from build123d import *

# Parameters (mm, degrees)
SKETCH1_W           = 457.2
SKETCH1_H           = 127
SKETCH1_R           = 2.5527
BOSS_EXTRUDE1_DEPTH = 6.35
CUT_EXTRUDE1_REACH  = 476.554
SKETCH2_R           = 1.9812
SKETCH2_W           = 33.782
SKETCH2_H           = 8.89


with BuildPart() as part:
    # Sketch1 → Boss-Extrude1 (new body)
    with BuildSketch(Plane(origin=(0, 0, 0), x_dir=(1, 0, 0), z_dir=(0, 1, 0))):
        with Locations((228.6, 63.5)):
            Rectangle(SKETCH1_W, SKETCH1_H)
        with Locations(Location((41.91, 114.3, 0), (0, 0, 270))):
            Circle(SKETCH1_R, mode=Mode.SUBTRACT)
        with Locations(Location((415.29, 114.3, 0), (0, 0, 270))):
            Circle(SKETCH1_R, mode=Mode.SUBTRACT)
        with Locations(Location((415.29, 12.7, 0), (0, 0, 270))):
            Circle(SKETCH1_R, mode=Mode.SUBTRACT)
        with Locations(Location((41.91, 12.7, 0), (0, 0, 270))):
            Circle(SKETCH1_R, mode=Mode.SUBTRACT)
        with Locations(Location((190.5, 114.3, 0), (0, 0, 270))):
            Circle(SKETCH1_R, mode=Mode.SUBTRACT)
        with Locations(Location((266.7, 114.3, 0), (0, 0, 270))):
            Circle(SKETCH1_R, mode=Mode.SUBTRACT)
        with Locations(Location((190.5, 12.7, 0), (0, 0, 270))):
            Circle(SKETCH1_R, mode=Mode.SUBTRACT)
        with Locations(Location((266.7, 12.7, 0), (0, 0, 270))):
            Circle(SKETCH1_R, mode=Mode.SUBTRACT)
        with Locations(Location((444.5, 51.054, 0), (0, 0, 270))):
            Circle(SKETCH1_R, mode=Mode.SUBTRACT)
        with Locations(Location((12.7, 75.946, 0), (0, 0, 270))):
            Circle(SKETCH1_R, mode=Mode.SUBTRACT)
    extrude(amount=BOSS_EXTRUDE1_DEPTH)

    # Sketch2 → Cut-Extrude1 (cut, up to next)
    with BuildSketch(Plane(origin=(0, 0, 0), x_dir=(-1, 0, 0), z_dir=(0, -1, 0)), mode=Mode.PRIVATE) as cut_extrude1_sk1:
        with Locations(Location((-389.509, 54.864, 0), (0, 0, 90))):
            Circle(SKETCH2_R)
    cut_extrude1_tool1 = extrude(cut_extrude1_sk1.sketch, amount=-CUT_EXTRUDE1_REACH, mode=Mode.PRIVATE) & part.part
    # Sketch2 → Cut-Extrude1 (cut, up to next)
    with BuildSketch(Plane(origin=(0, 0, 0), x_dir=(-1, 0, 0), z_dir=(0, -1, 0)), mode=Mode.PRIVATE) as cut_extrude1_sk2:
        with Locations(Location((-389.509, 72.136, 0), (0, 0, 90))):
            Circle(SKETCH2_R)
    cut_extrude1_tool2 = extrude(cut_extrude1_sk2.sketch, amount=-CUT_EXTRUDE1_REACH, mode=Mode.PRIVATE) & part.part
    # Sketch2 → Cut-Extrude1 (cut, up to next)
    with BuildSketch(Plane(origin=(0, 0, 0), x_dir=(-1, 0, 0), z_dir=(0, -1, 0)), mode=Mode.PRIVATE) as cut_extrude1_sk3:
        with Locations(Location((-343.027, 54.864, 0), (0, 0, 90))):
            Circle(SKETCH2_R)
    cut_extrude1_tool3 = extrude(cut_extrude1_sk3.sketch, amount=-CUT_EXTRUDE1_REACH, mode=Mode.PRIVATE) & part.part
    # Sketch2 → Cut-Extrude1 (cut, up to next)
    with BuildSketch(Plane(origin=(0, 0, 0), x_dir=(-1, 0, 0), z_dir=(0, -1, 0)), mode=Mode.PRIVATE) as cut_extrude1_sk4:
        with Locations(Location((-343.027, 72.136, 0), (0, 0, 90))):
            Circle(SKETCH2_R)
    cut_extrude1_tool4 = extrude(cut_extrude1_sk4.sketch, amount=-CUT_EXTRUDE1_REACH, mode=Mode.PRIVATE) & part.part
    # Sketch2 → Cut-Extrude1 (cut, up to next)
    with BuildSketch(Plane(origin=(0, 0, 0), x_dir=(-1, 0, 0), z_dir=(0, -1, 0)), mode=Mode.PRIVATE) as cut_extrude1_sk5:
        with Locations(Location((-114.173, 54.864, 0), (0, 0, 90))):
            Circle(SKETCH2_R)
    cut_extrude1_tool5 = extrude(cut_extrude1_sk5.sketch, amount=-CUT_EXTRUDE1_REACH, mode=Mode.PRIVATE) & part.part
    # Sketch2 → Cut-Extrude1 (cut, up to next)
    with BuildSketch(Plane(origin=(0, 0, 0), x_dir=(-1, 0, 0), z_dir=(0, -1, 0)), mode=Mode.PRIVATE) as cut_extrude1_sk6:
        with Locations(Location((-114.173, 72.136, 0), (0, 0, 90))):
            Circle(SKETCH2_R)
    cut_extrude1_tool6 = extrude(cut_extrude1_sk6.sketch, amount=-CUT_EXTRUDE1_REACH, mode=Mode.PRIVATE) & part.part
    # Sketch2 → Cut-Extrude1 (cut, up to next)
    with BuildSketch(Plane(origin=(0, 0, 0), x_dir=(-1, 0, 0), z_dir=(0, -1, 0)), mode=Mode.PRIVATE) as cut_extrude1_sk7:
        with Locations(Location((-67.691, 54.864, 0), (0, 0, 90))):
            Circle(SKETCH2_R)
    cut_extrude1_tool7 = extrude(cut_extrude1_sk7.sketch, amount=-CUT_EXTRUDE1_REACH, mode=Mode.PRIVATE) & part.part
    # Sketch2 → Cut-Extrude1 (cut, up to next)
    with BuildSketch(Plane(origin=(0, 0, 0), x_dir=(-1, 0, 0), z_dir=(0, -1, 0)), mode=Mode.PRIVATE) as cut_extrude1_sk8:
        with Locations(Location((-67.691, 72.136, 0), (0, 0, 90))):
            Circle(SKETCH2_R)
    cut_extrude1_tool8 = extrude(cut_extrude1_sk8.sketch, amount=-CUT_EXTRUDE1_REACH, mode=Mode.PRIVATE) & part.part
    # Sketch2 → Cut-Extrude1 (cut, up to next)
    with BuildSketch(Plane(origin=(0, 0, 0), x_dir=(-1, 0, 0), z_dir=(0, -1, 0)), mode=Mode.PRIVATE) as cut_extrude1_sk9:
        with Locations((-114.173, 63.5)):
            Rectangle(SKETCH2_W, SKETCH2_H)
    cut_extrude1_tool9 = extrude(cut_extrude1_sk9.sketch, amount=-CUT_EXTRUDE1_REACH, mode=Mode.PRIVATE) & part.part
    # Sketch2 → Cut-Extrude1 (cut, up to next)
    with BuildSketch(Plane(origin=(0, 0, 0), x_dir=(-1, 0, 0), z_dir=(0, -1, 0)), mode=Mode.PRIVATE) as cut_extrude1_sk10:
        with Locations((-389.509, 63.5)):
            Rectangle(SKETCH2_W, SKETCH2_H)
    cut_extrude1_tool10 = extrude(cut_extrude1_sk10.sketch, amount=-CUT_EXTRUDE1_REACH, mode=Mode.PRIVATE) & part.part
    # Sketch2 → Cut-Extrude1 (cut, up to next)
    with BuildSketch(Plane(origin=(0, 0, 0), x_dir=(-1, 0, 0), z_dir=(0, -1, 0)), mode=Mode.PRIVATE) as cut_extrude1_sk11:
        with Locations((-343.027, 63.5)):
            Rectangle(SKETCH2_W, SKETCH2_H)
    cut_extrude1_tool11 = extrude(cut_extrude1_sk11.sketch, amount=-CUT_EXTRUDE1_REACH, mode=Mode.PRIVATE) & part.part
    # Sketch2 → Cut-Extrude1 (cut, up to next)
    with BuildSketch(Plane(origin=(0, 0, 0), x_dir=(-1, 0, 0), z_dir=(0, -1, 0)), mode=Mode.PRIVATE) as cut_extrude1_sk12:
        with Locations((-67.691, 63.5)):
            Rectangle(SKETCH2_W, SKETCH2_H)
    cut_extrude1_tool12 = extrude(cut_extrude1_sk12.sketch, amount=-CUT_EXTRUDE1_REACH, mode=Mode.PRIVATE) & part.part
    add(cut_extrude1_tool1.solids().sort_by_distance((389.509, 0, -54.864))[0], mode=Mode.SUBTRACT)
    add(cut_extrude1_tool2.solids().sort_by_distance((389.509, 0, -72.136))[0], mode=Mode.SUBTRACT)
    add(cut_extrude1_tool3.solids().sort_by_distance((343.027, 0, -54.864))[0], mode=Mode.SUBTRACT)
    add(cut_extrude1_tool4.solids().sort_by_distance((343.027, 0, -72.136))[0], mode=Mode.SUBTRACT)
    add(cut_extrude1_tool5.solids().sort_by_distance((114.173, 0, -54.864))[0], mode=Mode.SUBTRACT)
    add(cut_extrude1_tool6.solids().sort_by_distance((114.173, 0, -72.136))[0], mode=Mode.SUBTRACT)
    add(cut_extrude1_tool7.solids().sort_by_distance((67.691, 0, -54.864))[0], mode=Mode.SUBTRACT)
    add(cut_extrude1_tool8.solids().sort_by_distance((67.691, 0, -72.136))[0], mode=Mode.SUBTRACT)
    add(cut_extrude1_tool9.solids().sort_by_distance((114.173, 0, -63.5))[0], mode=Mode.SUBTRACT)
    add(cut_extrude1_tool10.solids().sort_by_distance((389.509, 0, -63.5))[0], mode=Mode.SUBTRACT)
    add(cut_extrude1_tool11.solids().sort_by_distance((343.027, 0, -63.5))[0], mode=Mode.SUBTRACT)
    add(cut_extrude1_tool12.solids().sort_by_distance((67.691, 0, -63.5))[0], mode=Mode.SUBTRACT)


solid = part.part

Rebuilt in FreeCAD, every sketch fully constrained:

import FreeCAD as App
import Part
import Sketcher
from FreeCAD import Vector
Q = App.Units.Quantity


def add_polygon(sketch, points):
    """Adds a closed chain of lines whose ends are joined by coincident constraints."""
    first, n = sketch.GeometryCount, len(points)
    for a, b in zip(points, points[1:] + points[:1]):
        sketch.addGeometry(Part.LineSegment(App.Vector(*a, 0), App.Vector(*b, 0)), False)
    for i in range(n):
        sketch.addConstraint(Sketcher.Constraint("Coincident", first + i, 2, first + (i + 1) % n, 1))

doc = App.newDocument("Part")
body = doc.addObject("PartDesign::Body", "Body")

# Sketch on XZ plane
sketch1 = body.newObject("Sketcher::SketchObject", "Sketch")
sketch1.AttachmentSupport = (doc.getObject("XZ_Plane"), [""])
sketch1.MapMode = "FlatFace"
add_polygon(sketch1, [(0, -127), (0, 0), (457.2, 0), (457.2, -127)])  # lines 0-3
sketch1.addGeometry(Part.Circle(Vector(41.9, -12.7, 0), Vector(0, 0, 1), 2.6), False)  # 4
sketch1.addGeometry(Part.Circle(Vector(190.5, -12.7, 0), Vector(0, 0, 1), 2.6), False)  # 5
sketch1.addGeometry(Part.Circle(Vector(266.7, -12.7, 0), Vector(0, 0, 1), 2.6), False)  # 6
sketch1.addGeometry(Part.Circle(Vector(415.3, -12.7, 0), Vector(0, 0, 1), 2.6), False)  # 7
sketch1.addGeometry(Part.Circle(Vector(444.5, -51.1, 0), Vector(0, 0, 1), 2.6), False)  # 8
sketch1.addGeometry(Part.Circle(Vector(12.7, -75.9, 0), Vector(0, 0, 1), 2.6), False)  # 9
sketch1.addGeometry(Part.Circle(Vector(41.9, -114.3, 0), Vector(0, 0, 1), 2.6), False)  # 10
sketch1.addGeometry(Part.Circle(Vector(190.5, -114.3, 0), Vector(0, 0, 1), 2.6), False)  # 11
sketch1.addGeometry(Part.Circle(Vector(266.7, -114.3, 0), Vector(0, 0, 1), 2.6), False)  # 12
sketch1.addGeometry(Part.Circle(Vector(415.3, -114.3, 0), Vector(0, 0, 1), 2.6), False)  # 13
sketch1.addConstraint([
    Sketcher.Constraint("Vertical", 0),
    Sketcher.Constraint("Horizontal", 1),
    Sketcher.Constraint("Vertical", 2),
    Sketcher.Constraint("Horizontal", 3),
    Sketcher.Constraint("Coincident", 0, 2, -1, 1),
    Sketcher.Constraint("Equal", 4, 5),
    Sketcher.Constraint("Equal", 5, 6),
    Sketcher.Constraint("Equal", 6, 7),
    Sketcher.Constraint("Equal", 7, 8),
    Sketcher.Constraint("Equal", 8, 9),
    Sketcher.Constraint("Equal", 9, 10),
    Sketcher.Constraint("Equal", 10, 11),
    Sketcher.Constraint("Equal", 11, 12),
    Sketcher.Constraint("Equal", 12, 13),
    Sketcher.Constraint("Horizontal", 4, 3, 5, 3),
    Sketcher.Constraint("Horizontal", 5, 3, 6, 3),
    Sketcher.Constraint("Horizontal", 6, 3, 7, 3),
    Sketcher.Constraint("Horizontal", 10, 3, 11, 3),
    Sketcher.Constraint("Horizontal", 11, 3, 12, 3),
    Sketcher.Constraint("Horizontal", 12, 3, 13, 3),
    Sketcher.Constraint("Vertical", 4, 3, 10, 3),
    Sketcher.Constraint("Vertical", 5, 3, 11, 3),
    Sketcher.Constraint("Vertical", 6, 3, 12, 3),
    Sketcher.Constraint("Vertical", 7, 3, 13, 3),
    Sketcher.Constraint("DistanceX", 1, 1, 1, 2, Q("18 in")),
    Sketcher.Constraint("DistanceY", 0, 1, 0, 2, Q("5 in")),
    Sketcher.Constraint("Diameter", 4, Q("0.201 in")),
    Sketcher.Constraint("DistanceX", 5, 3, 6, 3, Q("3 in")),
    Sketcher.Constraint("DistanceX", 6, 3, 8, 3, Q("7 in")),
    Sketcher.Constraint("DistanceX", 9, 3, 5, 3, Q("7 in")),
    Sketcher.Constraint("DistanceY", 10, 3, 4, 3, Q("4 in")),
    Sketcher.Constraint("DistanceY", 4, 3, -1, 1, Q("0.5 in")),
    Sketcher.Constraint("DistanceX", -1, 1, 5, 3, Q("7.5 in")),
    Sketcher.Constraint("DistanceX", 4, 3, 7, 3, Q("14.7 in")),
    Sketcher.Constraint("DistanceX", -1, 1, 4, 3, Q("1.65 in")),
    Sketcher.Constraint("DistanceY", 8, 3, -1, 1, Q("2.01 in")),
    Sketcher.Constraint("DistanceY", 9, 3, -1, 1, Q("2.99 in")),
])
pad1 = body.newObject("PartDesign::Pad", "Pad")
pad1.Profile = sketch1
pad1.Length = Q("0.25 in")
pad1.Reversed = True

# Sketch on XZ plane
sketch2 = body.newObject("Sketcher::SketchObject", "Sketch001")
sketch2.AttachmentSupport = (doc.getObject("XZ_Plane"), [""])
sketch2.MapMode = "FlatFace"
sketch2.addGeometry(Part.Circle(Vector(389.5, -54.9, 0), Vector(0, 0, 1), 2), False)
sketch2.addConstraint([
    Sketcher.Constraint("Diameter", 0, Q("0.156 in")),
    Sketcher.Constraint("DistanceY", 0, 3, -1, 1, Q("2.16 in")),
    Sketcher.Constraint("DistanceX", -1, 1, 0, 3, Q("15.335 in")),
])
pocket1 = body.newObject("PartDesign::Pocket", "Pocket")
pocket1.Profile = sketch2
pocket1.Type = "UpToFirst"

# Sketch on XZ plane
sketch3 = body.newObject("Sketcher::SketchObject", "Sketch002")
sketch3.AttachmentSupport = (doc.getObject("XZ_Plane"), [""])
sketch3.MapMode = "FlatFace"
sketch3.addGeometry(Part.Circle(Vector(389.5, -72.1, 0), Vector(0, 0, 1), 2), False)
sketch3.addConstraint([
    Sketcher.Constraint("Diameter", 0, Q("0.156 in")),
    Sketcher.Constraint("DistanceY", 0, 3, -1, 1, Q("2.84 in")),
    Sketcher.Constraint("DistanceX", -1, 1, 0, 3, Q("15.335 in")),
])
pocket2 = body.newObject("PartDesign::Pocket", "Pocket001")
pocket2.Profile = sketch3
pocket2.Type = "UpToFirst"

# Sketch on XZ plane
sketch4 = body.newObject("Sketcher::SketchObject", "Sketch003")
sketch4.AttachmentSupport = (doc.getObject("XZ_Plane"), [""])
sketch4.MapMode = "FlatFace"
sketch4.addGeometry(Part.Circle(Vector(343, -54.9, 0), Vector(0, 0, 1), 2), False)
sketch4.addConstraint([
    Sketcher.Constraint("Diameter", 0, Q("0.156 in")),
    Sketcher.Constraint("DistanceY", 0, 3, -1, 1, Q("2.16 in")),
    Sketcher.Constraint("DistanceX", -1, 1, 0, 3, Q("13.505 in")),
])
pocket3 = body.newObject("PartDesign::Pocket", "Pocket002")
pocket3.Profile = sketch4
pocket3.Type = "UpToFirst"

# Sketch on XZ plane
sketch5 = body.newObject("Sketcher::SketchObject", "Sketch004")
sketch5.AttachmentSupport = (doc.getObject("XZ_Plane"), [""])
sketch5.MapMode = "FlatFace"
sketch5.addGeometry(Part.Circle(Vector(343, -72.1, 0), Vector(0, 0, 1), 2), False)
sketch5.addConstraint([
    Sketcher.Constraint("Diameter", 0, Q("0.156 in")),
    Sketcher.Constraint("DistanceY", 0, 3, -1, 1, Q("2.84 in")),
    Sketcher.Constraint("DistanceX", -1, 1, 0, 3, Q("13.505 in")),
])
pocket4 = body.newObject("PartDesign::Pocket", "Pocket003")
pocket4.Profile = sketch5
pocket4.Type = "UpToFirst"

# Sketch on XZ plane
sketch6 = body.newObject("Sketcher::SketchObject", "Sketch005")
sketch6.AttachmentSupport = (doc.getObject("XZ_Plane"), [""])
sketch6.MapMode = "FlatFace"
sketch6.addGeometry(Part.Circle(Vector(114.2, -54.9, 0), Vector(0, 0, 1), 2), False)
sketch6.addConstraint([
    Sketcher.Constraint("Diameter", 0, Q("0.156 in")),
    Sketcher.Constraint("DistanceY", 0, 3, -1, 1, Q("2.16 in")),
    Sketcher.Constraint("DistanceX", -1, 1, 0, 3, Q("4.495 in")),
])
pocket5 = body.newObject("PartDesign::Pocket", "Pocket004")
pocket5.Profile = sketch6
pocket5.Type = "UpToFirst"

# Sketch on XZ plane
sketch7 = body.newObject("Sketcher::SketchObject", "Sketch006")
sketch7.AttachmentSupport = (doc.getObject("XZ_Plane"), [""])
sketch7.MapMode = "FlatFace"
sketch7.addGeometry(Part.Circle(Vector(114.2, -72.1, 0), Vector(0, 0, 1), 2), False)
sketch7.addConstraint([
    Sketcher.Constraint("Diameter", 0, Q("0.156 in")),
    Sketcher.Constraint("DistanceY", 0, 3, -1, 1, Q("2.84 in")),
    Sketcher.Constraint("DistanceX", -1, 1, 0, 3, Q("4.495 in")),
])
pocket6 = body.newObject("PartDesign::Pocket", "Pocket005")
pocket6.Profile = sketch7
pocket6.Type = "UpToFirst"

# Sketch on XZ plane
sketch8 = body.newObject("Sketcher::SketchObject", "Sketch007")
sketch8.AttachmentSupport = (doc.getObject("XZ_Plane"), [""])
sketch8.MapMode = "FlatFace"
sketch8.addGeometry(Part.Circle(Vector(67.7, -54.9, 0), Vector(0, 0, 1), 2), False)
sketch8.addConstraint([
    Sketcher.Constraint("Diameter", 0, Q("0.156 in")),
    Sketcher.Constraint("DistanceY", 0, 3, -1, 1, Q("2.16 in")),
    Sketcher.Constraint("DistanceX", -1, 1, 0, 3, Q("2.665 in")),
])
pocket7 = body.newObject("PartDesign::Pocket", "Pocket006")
pocket7.Profile = sketch8
pocket7.Type = "UpToFirst"

# Sketch on XZ plane
sketch9 = body.newObject("Sketcher::SketchObject", "Sketch008")
sketch9.AttachmentSupport = (doc.getObject("XZ_Plane"), [""])
sketch9.MapMode = "FlatFace"
sketch9.addGeometry(Part.Circle(Vector(67.7, -72.1, 0), Vector(0, 0, 1), 2), False)
sketch9.addConstraint([
    Sketcher.Constraint("Diameter", 0, Q("0.156 in")),
    Sketcher.Constraint("DistanceY", 0, 3, -1, 1, Q("2.84 in")),
    Sketcher.Constraint("DistanceX", -1, 1, 0, 3, Q("2.665 in")),
])
pocket8 = body.newObject("PartDesign::Pocket", "Pocket007")
pocket8.Profile = sketch9
pocket8.Type = "UpToFirst"

# Sketch on XZ plane
sketch10 = body.newObject("Sketcher::SketchObject", "Sketch009")
sketch10.AttachmentSupport = (doc.getObject("XZ_Plane"), [""])
sketch10.MapMode = "FlatFace"
add_polygon(sketch10, [(131, -68), (131, -59), (97, -59), (97, -68)])  # lines 0-3
sketch10.addConstraint([
    Sketcher.Constraint("Vertical", 0),
    Sketcher.Constraint("Horizontal", 1),
    Sketcher.Constraint("Vertical", 2),
    Sketcher.Constraint("Horizontal", 3),
    Sketcher.Constraint("DistanceX", 1, 2, 1, 1, Q("1.33 in")),
    Sketcher.Constraint("DistanceY", 0, 1, 0, 2, Q("0.35 in")),
    Sketcher.Constraint("DistanceX", -1, 1, 0, 2, Q("5.16 in")),
    Sketcher.Constraint("DistanceY", 0, 2, -1, 1, Q("2.325 in")),
])
pocket9 = body.newObject("PartDesign::Pocket", "Pocket008")
pocket9.Profile = sketch10
pocket9.Type = "UpToFirst"

# Sketch on XZ plane
sketch11 = body.newObject("Sketcher::SketchObject", "Sketch010")
sketch11.AttachmentSupport = (doc.getObject("XZ_Plane"), [""])
sketch11.MapMode = "FlatFace"
add_polygon(sketch11, [(406, -68), (406, -59), (373, -59), (373, -68)])  # lines 0-3
sketch11.addConstraint([
    Sketcher.Constraint("Vertical", 0),
    Sketcher.Constraint("Horizontal", 1),
    Sketcher.Constraint("Vertical", 2),
    Sketcher.Constraint("Horizontal", 3),
    Sketcher.Constraint("DistanceX", -1, 1, 0, 2, Q("16 in")),
    Sketcher.Constraint("DistanceX", 1, 2, 1, 1, Q("1.33 in")),
    Sketcher.Constraint("DistanceY", 0, 1, 0, 2, Q("0.35 in")),
    Sketcher.Constraint("DistanceY", 0, 2, -1, 1, Q("2.325 in")),
])
pocket10 = body.newObject("PartDesign::Pocket", "Pocket009")
pocket10.Profile = sketch11
pocket10.Type = "UpToFirst"

# Sketch on XZ plane
sketch12 = body.newObject("Sketcher::SketchObject", "Sketch011")
sketch12.AttachmentSupport = (doc.getObject("XZ_Plane"), [""])
sketch12.MapMode = "FlatFace"
add_polygon(sketch12, [(360, -68), (360, -59), (326, -59), (326, -68)])  # lines 0-3
sketch12.addConstraint([
    Sketcher.Constraint("Vertical", 0),
    Sketcher.Constraint("Horizontal", 1),
    Sketcher.Constraint("Vertical", 2),
    Sketcher.Constraint("Horizontal", 3),
    Sketcher.Constraint("DistanceX", 1, 2, 1, 1, Q("1.33 in")),
    Sketcher.Constraint("DistanceY", 0, 1, 0, 2, Q("0.35 in")),
    Sketcher.Constraint("DistanceX", -1, 1, 0, 2, Q("14.17 in")),
    Sketcher.Constraint("DistanceY", 0, 2, -1, 1, Q("2.325 in")),
])
pocket11 = body.newObject("PartDesign::Pocket", "Pocket010")
pocket11.Profile = sketch12
pocket11.Type = "UpToFirst"

# Sketch on XZ plane
sketch13 = body.newObject("Sketcher::SketchObject", "Sketch012")
sketch13.AttachmentSupport = (doc.getObject("XZ_Plane"), [""])
sketch13.MapMode = "FlatFace"
add_polygon(sketch13, [(85, -68), (85, -59), (51, -59), (51, -68)])  # lines 0-3
sketch13.addConstraint([
    Sketcher.Constraint("Vertical", 0),
    Sketcher.Constraint("Horizontal", 1),
    Sketcher.Constraint("Vertical", 2),
    Sketcher.Constraint("Horizontal", 3),
    Sketcher.Constraint("DistanceX", -1, 1, 1, 2, Q("2 in")),
    Sketcher.Constraint("DistanceX", 1, 2, 1, 1, Q("1.33 in")),
    Sketcher.Constraint("DistanceY", 0, 1, 0, 2, Q("0.35 in")),
    Sketcher.Constraint("DistanceY", 0, 2, -1, 1, Q("2.325 in")),
])
pocket12 = body.newObject("PartDesign::Pocket", "Pocket011")
pocket12.Profile = sketch13
pocket12.Type = "UpToFirst"

doc.recompute()
